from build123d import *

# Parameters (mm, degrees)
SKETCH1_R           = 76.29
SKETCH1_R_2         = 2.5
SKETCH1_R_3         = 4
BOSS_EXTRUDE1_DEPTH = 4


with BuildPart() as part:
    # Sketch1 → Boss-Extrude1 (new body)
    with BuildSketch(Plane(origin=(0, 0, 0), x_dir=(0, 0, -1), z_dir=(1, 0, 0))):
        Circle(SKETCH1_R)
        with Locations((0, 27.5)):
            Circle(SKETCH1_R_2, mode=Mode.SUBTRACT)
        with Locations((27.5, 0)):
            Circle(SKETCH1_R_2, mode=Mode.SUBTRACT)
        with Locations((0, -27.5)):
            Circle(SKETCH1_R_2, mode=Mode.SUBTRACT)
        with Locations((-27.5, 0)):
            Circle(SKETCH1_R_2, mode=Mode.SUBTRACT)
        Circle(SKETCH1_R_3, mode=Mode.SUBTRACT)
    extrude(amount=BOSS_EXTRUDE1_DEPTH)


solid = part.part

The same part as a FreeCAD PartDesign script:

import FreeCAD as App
import Part
import Sketcher

doc = App.newDocument("Part")
body = doc.addObject("PartDesign::Body", "Body")

# Sketch on YZ plane
sketch1 = body.newObject("Sketcher::SketchObject", "Sketch")
sketch1.AttachmentSupport = (doc.getObject("YZ_Plane"), [""])
sketch1.MapMode = "FlatFace"
sketch1.addGeometry(Part.Circle(App.Vector(0, 0, 0), App.Vector(0, 0, 1), 76.3), False)
sketch1.addGeometry(Part.Circle(App.Vector(-27.5, 0, 0), App.Vector(0, 0, 1), 2.5), False)
sketch1.addGeometry(Part.Circle(App.Vector(0, 27.5, 0), App.Vector(0, 0, 1), 2.5), False)
sketch1.addGeometry(Part.Circle(App.Vector(0, 0, 0), App.Vector(0, 0, 1), 4), False)
sketch1.addGeometry(Part.Circle(App.Vector(0, -27.5, 0), App.Vector(0, 0, 1), 2.5), False)
sketch1.addGeometry(Part.Circle(App.Vector(27.5, 0, 0), App.Vector(0, 0, 1), 2.5), False)
sketch1.addConstraint(Sketcher.Constraint("Coincident", 0, 3, -1, 1))
sketch1.addConstraint(Sketcher.Constraint("Coincident", 3, 3, -1, 1))
sketch1.addConstraint(Sketcher.Constraint("Equal", 1, 2))
sketch1.addConstraint(Sketcher.Constraint("Equal", 2, 4))
sketch1.addConstraint(Sketcher.Constraint("Equal", 4, 5))
sketch1.addConstraint(Sketcher.Constraint("Symmetric", 2, 3, 4, 3, -1, 1))
sketch1.addConstraint(Sketcher.Constraint("Symmetric", 1, 3, 5, 3, -1, 1))
sketch1.addConstraint(Sketcher.Constraint("PointOnObject", 1, 3, -1))
sketch1.addConstraint(Sketcher.Constraint("PointOnObject", 2, 3, -2))
sketch1.addConstraint(Sketcher.Constraint("Diameter", 1, 5.0))
sketch1.addConstraint(Sketcher.Constraint("Diameter", 3, 8.0))
sketch1.addConstraint(Sketcher.Constraint("Diameter", 0, 152.58))
sketch1.addConstraint(Sketcher.Constraint("DistanceY", 4, 3, 2, 3, 55.0))
sketch1.addConstraint(Sketcher.Constraint("DistanceX", 1, 3, 5, 3, 55.0))
pad1 = body.newObject("PartDesign::Pad", "Pad")
pad1.Profile = sketch1
pad1.Length = 4

doc.recompute()
